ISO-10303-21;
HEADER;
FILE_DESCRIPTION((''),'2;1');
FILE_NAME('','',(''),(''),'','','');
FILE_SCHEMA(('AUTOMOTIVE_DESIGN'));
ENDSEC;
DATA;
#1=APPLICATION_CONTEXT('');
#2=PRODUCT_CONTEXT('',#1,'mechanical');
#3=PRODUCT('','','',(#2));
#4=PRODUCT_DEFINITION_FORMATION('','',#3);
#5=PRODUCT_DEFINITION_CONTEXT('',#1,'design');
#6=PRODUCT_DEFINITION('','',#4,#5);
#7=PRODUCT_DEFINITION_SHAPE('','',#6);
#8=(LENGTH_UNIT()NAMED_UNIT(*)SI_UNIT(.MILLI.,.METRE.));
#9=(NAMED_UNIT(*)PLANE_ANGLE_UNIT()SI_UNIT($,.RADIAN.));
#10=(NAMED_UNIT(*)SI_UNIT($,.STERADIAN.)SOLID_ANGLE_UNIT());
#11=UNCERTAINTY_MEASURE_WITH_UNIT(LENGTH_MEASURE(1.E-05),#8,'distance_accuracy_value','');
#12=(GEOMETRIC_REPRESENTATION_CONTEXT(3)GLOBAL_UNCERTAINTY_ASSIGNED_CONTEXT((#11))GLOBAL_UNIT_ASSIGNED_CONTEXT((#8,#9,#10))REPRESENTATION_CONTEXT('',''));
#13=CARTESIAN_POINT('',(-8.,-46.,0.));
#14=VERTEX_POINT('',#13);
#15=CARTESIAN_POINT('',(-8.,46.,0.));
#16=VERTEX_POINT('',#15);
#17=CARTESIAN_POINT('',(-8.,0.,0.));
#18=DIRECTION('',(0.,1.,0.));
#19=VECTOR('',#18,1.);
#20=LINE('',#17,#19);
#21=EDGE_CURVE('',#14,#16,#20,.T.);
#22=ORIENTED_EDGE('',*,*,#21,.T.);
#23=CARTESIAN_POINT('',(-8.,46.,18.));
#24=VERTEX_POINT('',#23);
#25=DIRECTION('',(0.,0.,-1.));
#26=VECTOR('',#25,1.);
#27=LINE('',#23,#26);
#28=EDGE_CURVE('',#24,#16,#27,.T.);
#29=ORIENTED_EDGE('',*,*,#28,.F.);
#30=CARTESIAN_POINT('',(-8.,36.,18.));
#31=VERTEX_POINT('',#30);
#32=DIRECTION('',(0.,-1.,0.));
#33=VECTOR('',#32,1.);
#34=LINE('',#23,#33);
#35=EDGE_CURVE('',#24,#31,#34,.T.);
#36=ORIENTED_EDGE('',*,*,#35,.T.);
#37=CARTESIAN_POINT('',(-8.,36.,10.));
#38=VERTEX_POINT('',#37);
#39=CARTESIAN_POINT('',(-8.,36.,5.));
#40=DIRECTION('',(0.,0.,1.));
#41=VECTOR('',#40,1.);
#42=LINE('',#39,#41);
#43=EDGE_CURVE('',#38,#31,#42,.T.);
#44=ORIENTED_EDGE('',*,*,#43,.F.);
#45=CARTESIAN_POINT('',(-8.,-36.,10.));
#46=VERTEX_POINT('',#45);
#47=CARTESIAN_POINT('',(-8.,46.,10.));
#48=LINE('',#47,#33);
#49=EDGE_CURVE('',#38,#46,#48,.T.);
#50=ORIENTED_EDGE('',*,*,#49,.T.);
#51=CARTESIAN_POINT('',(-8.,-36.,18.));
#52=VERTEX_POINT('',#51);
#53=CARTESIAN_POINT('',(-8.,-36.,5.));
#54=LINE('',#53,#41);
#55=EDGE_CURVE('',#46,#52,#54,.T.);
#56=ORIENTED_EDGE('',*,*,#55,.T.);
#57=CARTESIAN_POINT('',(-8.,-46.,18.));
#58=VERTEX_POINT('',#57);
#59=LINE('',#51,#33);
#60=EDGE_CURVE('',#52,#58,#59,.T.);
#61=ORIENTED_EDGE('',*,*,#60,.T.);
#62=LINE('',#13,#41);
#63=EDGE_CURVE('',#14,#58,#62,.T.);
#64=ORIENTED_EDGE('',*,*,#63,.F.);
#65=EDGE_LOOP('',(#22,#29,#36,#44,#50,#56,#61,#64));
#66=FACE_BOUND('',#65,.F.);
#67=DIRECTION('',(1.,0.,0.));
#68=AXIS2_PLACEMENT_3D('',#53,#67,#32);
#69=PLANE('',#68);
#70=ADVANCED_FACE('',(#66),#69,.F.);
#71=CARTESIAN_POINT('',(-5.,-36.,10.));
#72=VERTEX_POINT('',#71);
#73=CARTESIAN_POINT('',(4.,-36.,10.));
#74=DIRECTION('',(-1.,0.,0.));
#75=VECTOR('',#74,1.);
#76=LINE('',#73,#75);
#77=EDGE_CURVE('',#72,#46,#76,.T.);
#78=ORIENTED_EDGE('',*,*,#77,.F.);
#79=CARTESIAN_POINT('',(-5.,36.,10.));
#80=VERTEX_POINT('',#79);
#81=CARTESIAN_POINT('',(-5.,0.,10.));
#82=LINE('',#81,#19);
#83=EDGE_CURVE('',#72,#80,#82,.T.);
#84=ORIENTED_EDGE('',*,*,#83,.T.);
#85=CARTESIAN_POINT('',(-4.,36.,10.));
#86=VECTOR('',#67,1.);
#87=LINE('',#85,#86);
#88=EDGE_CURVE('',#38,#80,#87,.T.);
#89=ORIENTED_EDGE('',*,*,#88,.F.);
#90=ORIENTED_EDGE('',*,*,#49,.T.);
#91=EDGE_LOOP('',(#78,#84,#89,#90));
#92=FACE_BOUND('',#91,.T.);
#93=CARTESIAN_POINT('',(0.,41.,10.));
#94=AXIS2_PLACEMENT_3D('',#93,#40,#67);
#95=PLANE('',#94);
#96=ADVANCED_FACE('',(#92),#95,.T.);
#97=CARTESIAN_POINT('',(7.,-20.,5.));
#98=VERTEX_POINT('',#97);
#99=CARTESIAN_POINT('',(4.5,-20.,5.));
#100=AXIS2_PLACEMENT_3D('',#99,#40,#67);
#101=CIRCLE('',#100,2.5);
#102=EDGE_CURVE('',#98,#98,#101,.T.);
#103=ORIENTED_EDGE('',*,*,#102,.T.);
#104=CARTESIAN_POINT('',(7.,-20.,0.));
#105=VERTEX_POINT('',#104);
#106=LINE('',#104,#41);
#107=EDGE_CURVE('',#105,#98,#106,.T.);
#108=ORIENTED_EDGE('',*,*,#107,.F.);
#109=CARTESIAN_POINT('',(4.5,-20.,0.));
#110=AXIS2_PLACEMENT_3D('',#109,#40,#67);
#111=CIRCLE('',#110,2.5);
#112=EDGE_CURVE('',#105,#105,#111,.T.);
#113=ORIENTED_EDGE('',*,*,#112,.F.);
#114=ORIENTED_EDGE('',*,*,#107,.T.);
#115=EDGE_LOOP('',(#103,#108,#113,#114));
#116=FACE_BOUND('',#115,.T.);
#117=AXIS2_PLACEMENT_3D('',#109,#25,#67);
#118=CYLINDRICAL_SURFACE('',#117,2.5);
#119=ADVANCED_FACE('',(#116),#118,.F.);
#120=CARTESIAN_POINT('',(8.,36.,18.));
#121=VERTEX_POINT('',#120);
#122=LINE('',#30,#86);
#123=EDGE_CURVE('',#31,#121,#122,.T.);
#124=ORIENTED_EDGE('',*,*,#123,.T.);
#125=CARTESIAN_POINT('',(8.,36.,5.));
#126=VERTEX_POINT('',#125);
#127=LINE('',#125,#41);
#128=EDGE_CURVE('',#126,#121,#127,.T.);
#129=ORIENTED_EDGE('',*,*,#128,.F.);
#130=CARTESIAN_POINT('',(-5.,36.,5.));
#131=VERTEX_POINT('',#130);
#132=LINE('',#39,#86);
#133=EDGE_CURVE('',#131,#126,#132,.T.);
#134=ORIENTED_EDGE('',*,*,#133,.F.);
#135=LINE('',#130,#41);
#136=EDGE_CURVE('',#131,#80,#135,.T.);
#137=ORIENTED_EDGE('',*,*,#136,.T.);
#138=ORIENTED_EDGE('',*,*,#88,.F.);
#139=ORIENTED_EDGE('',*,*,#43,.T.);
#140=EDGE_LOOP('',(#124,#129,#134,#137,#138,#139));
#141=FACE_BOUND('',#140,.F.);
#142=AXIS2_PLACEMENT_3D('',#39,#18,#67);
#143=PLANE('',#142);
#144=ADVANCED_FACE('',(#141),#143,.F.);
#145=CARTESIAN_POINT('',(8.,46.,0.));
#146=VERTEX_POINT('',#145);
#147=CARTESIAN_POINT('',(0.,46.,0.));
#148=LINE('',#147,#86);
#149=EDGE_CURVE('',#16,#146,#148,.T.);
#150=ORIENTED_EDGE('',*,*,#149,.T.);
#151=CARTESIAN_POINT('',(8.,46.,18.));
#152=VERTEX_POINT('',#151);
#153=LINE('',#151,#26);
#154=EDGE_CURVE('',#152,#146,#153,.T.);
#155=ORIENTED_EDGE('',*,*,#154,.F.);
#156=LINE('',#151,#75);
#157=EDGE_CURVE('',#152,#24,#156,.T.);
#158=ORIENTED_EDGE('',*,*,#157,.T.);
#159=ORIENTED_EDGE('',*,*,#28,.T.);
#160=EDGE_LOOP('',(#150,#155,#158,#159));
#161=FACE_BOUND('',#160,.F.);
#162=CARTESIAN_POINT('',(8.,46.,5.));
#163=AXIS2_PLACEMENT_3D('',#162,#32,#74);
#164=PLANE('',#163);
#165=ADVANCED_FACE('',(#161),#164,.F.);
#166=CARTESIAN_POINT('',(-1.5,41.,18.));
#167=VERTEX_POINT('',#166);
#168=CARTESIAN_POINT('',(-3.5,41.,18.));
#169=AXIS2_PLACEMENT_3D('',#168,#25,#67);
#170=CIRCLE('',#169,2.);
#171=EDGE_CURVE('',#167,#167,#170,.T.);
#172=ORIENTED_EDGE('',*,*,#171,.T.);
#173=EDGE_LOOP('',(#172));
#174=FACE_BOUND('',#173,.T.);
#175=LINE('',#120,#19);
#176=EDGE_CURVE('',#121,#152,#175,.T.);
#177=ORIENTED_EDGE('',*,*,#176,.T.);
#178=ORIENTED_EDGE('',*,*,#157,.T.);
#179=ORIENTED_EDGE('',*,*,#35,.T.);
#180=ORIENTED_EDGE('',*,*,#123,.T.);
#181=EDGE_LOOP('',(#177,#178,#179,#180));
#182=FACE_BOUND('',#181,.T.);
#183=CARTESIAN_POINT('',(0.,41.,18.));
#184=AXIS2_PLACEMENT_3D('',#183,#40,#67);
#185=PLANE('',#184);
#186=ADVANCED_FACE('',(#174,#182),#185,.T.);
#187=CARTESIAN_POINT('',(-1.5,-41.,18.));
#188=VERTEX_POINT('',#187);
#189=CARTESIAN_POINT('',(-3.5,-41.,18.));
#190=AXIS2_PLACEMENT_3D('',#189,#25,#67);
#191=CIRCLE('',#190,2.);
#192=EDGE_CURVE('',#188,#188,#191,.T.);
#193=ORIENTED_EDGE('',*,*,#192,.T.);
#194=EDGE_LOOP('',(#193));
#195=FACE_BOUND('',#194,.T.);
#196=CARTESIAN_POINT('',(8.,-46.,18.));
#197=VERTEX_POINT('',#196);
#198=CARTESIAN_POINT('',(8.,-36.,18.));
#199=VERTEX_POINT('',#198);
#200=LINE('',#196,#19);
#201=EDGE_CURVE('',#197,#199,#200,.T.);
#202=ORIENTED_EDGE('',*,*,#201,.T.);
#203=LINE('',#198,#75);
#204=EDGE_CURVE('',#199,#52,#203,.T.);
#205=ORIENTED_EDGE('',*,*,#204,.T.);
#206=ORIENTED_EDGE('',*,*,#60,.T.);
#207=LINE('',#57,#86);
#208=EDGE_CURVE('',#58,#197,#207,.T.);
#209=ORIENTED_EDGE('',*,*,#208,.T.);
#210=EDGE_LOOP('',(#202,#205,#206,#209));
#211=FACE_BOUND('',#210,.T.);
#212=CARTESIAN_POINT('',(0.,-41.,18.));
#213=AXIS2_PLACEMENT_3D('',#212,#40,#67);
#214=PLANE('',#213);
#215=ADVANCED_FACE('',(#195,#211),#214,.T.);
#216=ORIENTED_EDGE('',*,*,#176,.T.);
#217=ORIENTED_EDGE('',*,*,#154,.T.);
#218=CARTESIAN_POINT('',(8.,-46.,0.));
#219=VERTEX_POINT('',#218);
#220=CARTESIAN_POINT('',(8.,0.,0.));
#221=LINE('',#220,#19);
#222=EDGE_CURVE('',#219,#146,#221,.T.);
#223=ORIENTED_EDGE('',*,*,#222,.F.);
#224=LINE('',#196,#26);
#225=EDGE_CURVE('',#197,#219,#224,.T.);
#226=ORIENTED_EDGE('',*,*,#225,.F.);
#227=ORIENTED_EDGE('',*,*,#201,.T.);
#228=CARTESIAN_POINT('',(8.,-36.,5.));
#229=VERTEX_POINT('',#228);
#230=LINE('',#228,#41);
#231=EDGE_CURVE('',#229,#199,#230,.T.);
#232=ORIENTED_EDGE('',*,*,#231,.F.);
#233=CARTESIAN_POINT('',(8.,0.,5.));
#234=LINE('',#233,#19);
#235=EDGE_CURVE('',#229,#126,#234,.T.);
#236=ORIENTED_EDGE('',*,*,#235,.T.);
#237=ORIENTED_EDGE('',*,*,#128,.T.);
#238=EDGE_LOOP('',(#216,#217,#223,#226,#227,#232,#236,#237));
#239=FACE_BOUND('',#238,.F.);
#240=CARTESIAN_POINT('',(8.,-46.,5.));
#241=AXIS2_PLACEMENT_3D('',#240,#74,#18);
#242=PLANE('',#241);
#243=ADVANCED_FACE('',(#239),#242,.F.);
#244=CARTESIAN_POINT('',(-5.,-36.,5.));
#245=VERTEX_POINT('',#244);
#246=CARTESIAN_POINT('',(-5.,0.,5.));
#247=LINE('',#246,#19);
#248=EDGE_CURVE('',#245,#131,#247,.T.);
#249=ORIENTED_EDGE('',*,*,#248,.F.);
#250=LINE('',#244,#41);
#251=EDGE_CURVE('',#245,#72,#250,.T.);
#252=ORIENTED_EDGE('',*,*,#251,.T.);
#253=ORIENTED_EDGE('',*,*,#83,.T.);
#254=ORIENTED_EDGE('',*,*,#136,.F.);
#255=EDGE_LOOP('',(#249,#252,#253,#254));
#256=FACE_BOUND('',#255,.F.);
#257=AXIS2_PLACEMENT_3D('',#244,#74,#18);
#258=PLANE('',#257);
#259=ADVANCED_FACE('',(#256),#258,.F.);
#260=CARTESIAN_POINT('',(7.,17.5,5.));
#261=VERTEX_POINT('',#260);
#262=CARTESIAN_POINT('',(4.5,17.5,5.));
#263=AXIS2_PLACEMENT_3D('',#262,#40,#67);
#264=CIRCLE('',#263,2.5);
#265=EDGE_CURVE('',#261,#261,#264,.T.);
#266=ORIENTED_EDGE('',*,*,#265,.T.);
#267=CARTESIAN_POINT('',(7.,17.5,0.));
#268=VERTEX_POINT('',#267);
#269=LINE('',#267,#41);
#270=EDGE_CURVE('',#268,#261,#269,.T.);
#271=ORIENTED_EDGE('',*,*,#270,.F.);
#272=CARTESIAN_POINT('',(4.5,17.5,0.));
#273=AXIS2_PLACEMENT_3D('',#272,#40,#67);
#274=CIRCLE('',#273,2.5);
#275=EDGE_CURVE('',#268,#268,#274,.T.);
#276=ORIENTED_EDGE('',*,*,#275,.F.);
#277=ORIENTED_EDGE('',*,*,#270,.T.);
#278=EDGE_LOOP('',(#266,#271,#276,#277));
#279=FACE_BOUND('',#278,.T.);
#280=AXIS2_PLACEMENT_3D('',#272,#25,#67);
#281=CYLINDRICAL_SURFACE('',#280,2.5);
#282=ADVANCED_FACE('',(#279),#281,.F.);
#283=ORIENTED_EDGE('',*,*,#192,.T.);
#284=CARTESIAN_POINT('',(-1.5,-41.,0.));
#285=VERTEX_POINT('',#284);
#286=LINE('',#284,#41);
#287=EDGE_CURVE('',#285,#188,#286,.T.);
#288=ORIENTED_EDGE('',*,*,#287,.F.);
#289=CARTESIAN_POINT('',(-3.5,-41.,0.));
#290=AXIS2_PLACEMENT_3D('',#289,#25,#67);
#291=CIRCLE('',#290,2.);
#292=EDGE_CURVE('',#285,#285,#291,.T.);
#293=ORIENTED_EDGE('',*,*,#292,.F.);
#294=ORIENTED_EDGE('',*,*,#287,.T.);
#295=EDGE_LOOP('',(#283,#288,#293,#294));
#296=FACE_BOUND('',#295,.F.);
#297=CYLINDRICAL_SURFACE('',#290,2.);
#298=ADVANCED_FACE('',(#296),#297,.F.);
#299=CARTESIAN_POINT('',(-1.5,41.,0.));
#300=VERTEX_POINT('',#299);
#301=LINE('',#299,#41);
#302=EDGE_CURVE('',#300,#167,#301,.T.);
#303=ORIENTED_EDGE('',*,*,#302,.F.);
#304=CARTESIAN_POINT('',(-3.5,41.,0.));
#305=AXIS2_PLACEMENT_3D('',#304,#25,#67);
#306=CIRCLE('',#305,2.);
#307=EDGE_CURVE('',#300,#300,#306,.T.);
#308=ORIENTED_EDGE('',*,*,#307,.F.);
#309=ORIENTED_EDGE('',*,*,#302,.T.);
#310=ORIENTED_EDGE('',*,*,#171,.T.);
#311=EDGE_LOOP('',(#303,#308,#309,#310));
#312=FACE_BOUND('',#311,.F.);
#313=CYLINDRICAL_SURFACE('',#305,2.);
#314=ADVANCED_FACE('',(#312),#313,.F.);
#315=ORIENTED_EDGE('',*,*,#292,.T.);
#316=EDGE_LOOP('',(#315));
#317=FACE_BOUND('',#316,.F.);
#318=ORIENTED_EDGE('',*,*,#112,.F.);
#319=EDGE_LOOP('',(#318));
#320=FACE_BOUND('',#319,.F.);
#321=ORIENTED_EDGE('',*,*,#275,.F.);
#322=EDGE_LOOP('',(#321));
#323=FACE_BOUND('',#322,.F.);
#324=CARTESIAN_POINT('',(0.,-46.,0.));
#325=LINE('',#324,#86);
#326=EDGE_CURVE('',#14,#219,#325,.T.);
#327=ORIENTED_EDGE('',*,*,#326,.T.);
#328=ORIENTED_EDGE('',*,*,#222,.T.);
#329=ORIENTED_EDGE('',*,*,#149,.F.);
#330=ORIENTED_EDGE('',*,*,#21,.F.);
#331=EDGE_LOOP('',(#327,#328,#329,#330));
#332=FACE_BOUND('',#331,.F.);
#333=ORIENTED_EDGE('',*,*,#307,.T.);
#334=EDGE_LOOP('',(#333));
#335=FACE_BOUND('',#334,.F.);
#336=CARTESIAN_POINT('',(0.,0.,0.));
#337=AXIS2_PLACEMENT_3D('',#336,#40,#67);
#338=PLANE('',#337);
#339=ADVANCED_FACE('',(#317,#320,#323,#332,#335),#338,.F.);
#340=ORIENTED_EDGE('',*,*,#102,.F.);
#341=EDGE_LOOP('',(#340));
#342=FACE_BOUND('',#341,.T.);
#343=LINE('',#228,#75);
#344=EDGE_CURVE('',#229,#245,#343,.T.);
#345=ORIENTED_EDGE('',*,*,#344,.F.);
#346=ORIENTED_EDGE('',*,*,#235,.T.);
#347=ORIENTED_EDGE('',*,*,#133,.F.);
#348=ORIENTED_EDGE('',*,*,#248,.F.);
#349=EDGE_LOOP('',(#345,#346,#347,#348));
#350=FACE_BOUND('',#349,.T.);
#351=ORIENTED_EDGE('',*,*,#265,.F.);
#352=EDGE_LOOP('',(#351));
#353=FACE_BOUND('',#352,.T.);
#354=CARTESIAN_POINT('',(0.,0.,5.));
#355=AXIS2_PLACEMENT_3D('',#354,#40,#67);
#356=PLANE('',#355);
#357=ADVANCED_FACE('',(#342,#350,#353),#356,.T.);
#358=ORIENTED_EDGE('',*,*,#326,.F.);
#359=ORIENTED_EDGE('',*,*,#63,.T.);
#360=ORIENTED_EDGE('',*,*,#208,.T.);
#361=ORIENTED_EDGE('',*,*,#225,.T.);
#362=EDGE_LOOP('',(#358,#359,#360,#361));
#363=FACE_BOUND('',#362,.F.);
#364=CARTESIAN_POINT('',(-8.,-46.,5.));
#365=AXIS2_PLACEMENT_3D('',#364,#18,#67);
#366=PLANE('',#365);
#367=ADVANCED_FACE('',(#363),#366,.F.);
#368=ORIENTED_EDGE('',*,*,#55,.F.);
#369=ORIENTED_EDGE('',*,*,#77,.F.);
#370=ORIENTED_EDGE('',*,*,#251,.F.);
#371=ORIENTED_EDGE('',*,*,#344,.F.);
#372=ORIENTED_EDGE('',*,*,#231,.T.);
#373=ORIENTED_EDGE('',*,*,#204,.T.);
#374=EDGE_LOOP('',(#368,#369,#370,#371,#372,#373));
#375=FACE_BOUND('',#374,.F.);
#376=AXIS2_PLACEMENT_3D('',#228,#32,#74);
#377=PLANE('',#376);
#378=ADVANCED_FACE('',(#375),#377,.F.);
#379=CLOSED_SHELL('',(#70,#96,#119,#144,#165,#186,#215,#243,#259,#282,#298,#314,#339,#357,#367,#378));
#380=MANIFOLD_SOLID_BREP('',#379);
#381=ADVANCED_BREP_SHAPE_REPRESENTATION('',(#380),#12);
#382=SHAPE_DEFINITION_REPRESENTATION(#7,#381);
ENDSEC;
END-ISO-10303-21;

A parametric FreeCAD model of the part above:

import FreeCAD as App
import Part
import Sketcher

V = App.Vector
Q = App.Units.Quantity


def add_polygon(sketch, points):
    """Adds a closed chain of lines whose ends are joined by coincident constraints."""
    first, n = sketch.GeometryCount, len(points)
    for a, b in zip(points, points[1:] + points[:1]):
        sketch.addGeometry(Part.LineSegment(App.Vector(*a, 0), App.Vector(*b, 0)), False)
    for i in range(n):
        sketch.addConstraint(Sketcher.Constraint("Coincident", first + i, 2, first + (i + 1) % n, 1))

doc = App.newDocument("Part")
params = doc.addObject("Spreadsheet::Sheet", "Params")
for row, (alias, value) in enumerate([
    ("sketch1_diameter", "5 mm"),
    ("sketch1_width", "16 mm"),
    ("sketch1_height", "92 mm"),
    ("pad1_length", "5 mm"),
    ("sketch2_width", "16 mm"),
    ("sketch2_height", "10 mm"),
    ("pad2_length", "13 mm"),
    ("sketch3_width", "16 mm"),
    ("sketch3_width2", "13 mm"),
    ("sketch3_height", "92 mm"),
    ("sketch3_height2", "10 mm"),
    ("pad3_length", "5 mm"),
    ("sketch4_diameter", "4 mm"),
    ("pocket1_length", "25 mm"),
], start=1):
    params.set(f"A{row}", alias)
    params.set(f"B{row}", "=" + value)
    params.setAlias(f"B{row}", alias)

body = doc.addObject("PartDesign::Body", "Body")

# Sketch on XY plane
sketch1 = doc.addObject("Sketcher::SketchObject", "Sketch")
body.addObject(sketch1)
sketch1.AttachmentSupport = (doc.XY_Plane, [""])
sketch1.MapMode = "FlatFace"
add_polygon(sketch1, [(-8, 46), (-8, -46), (8, -46), (8, 46)])  # lines 0-3
sketch1.addGeometry(Part.Circle(V(4.5, -20, 0), V(0, 0, 1), 2.5), False)  # 4
sketch1.addGeometry(Part.Circle(V(4.5, 17.5, 0), V(0, 0, 1), 2.5), False)  # 5
sketch1.addConstraint([
    Sketcher.Constraint("Vertical", 0),
    Sketcher.Constraint("Horizontal", 1),
    Sketcher.Constraint("Vertical", 2),
    Sketcher.Constraint("Horizontal", 3),
    Sketcher.Constraint("Equal", 4, 5),
    Sketcher.Constraint("Symmetric", 0, 2, 2, 2, -1, 1),
    Sketcher.Constraint("Vertical", 4, 3, 5, 3),
    Sketcher.Constraint("Diameter", 4, Q("5 mm")),
    Sketcher.Constraint("DistanceX", 1, 1, 1, 2, Q("16 mm")),
    Sketcher.Constraint("DistanceY", 0, 2, 0, 1, Q("92 mm")),
    Sketcher.Constraint("DistanceY", 4, 3, -1, 1, Q("20 mm")),
    Sketcher.Constraint("DistanceX", -1, 1, 4, 3, Q("4.5 mm")),
    Sketcher.Constraint("DistanceY", -1, 1, 5, 3, Q("17.5 mm")),
])
sketch1.setExpression("Constraints[11]", "Params.sketch1_diameter")
sketch1.setExpression("Constraints[12]", "Params.sketch1_width")
sketch1.setExpression("Constraints[13]", "Params.sketch1_height")
pad1 = doc.addObject("PartDesign::Pad", "Pad")
body.addObject(pad1)
pad1.Profile = sketch1
pad1.setExpression("Length", "Params.pad1_length")

# Sketch on XY plane
sketch2 = doc.addObject("Sketcher::SketchObject", "Sketch001")
body.addObject(sketch2)
sketch2.AttachmentSupport = (doc.XY_Plane, [""])
sketch2.MapMode = "FlatFace"
sketch2.AttachmentOffset = App.Placement(V(0, 0, 5), App.Rotation())
add_polygon(sketch2, [(-8, -36), (-8, -46), (8, -46), (8, -36)])  # lines 0-3
add_polygon(sketch2, [(8, 46), (-8, 46), (-8, 36), (8, 36)])  # lines 4-7
sketch2.addConstraint([
    Sketcher.Constraint("Vertical", 0),
    Sketcher.Constraint("Horizontal", 1),
    Sketcher.Constraint("Vertical", 2),
    Sketcher.Constraint("Horizontal", 3),
    Sketcher.Constraint("Horizontal", 4),
    Sketcher.Constraint("Vertical", 5),
    Sketcher.Constraint("Horizontal", 6),
    Sketcher.Constraint("Vertical", 7),
    Sketcher.Constraint("Symmetric", 1, 2, 4, 2, -1, 1),
    Sketcher.Constraint("Symmetric", 3, 2, 6, 2, -1, 1),
    Sketcher.Constraint("Vertical", 3, 2, 4, 2),
    Sketcher.Constraint("DistanceX", 1, 1, 1, 2, Q("16 mm")),
    Sketcher.Constraint("DistanceY", 0, 2, 0, 1, Q("10 mm")),
    Sketcher.Constraint("DistanceY", 0, 2, -1, 1, Q("46 mm")),
])
sketch2.setExpression("Constraints[19]", "Params.sketch2_width")
sketch2.setExpression("Constraints[20]", "Params.sketch2_height")
pad2 = doc.addObject("PartDesign::Pad", "Pad001")
body.addObject(pad2)
pad2.Profile = sketch2
pad2.setExpression("Length", "Params.pad2_length")

# Sketch on XY plane
sketch3 = doc.addObject("Sketcher::SketchObject", "Sketch002")
body.addObject(sketch3)
sketch3.AttachmentSupport = (doc.XY_Plane, [""])
sketch3.MapMode = "FlatFace"
sketch3.AttachmentOffset = App.Placement(V(0, 0, 5), App.Rotation())
add_polygon(sketch3, [(8, 46), (-8, 46), (-8, -46), (8, -46), (8, -36), (-5, -36), (-5, 36), (8, 36)])  # lines 0-7
sketch3.addConstraint([
    Sketcher.Constraint("Horizontal", 0),
    Sketcher.Constraint("Vertical", 1),
    Sketcher.Constraint("Horizontal", 2),
    Sketcher.Constraint("Vertical", 3),
    Sketcher.Constraint("Horizontal", 4),
    Sketcher.Constraint("Vertical", 5),
    Sketcher.Constraint("Horizontal", 6),
    Sketcher.Constraint("Vertical", 7),
    Sketcher.Constraint("Symmetric", 0, 2, 2, 2, -1, 1),
    Sketcher.Constraint("Symmetric", 3, 2, 6, 2, -1),
    Sketcher.Constraint("DistanceX", 0, 2, 0, 1, Q("16 mm")),
    Sketcher.Constraint("DistanceX", 4, 2, 4, 1, Q("13 mm")),
    Sketcher.Constraint("DistanceY", 1, 2, 1, 1, Q("92 mm")),
    Sketcher.Constraint("DistanceY", 3, 1, 3, 2, Q("10 mm")),
])
sketch3.setExpression("Constraints[18]", "Params.sketch3_width")
sketch3.setExpression("Constraints[19]", "Params.sketch3_width2")
sketch3.setExpression("Constraints[20]", "Params.sketch3_height")
sketch3.setExpression("Constraints[21]", "Params.sketch3_height2")
pad3 = doc.addObject("PartDesign::Pad", "Pad002")
body.addObject(pad3)
pad3.Profile = sketch3
pad3.setExpression("Length", "Params.pad3_length")

# Sketch on XY plane
sketch4 = doc.addObject("Sketcher::SketchObject", "Sketch003")
body.addObject(sketch4)
sketch4.AttachmentSupport = (doc.XY_Plane, [""])
sketch4.MapMode = "FlatFace"
sketch4.addGeometry([
    Part.Circle(V(-3.5, 41, 0), V(0, 0, 1), 2),
    Part.Circle(V(-3.5, -41, 0), V(0, 0, 1), 2),
], False)
sketch4.addConstraint([
    Sketcher.Constraint("Equal", 0, 1),
    Sketcher.Constraint("Symmetric", 0, 3, 1, 3, -1),
    Sketcher.Constraint("Diameter", 0, Q("4 mm")),
    Sketcher.Constraint("DistanceY", -1, 1, 0, 3, Q("41 mm")),
    Sketcher.Constraint("DistanceX", 0, 3, -1, 1, Q("3.5 mm")),
])
sketch4.setExpression("Constraints[2]", "Params.sketch4_diameter")
pocket1 = doc.addObject("PartDesign::Pocket", "Pocket")
body.addObject(pocket1)
pocket1.Profile = sketch4
pocket1.setExpression("Length", "Params.pocket1_length")
pocket1.Reversed = True

doc.recompute()
